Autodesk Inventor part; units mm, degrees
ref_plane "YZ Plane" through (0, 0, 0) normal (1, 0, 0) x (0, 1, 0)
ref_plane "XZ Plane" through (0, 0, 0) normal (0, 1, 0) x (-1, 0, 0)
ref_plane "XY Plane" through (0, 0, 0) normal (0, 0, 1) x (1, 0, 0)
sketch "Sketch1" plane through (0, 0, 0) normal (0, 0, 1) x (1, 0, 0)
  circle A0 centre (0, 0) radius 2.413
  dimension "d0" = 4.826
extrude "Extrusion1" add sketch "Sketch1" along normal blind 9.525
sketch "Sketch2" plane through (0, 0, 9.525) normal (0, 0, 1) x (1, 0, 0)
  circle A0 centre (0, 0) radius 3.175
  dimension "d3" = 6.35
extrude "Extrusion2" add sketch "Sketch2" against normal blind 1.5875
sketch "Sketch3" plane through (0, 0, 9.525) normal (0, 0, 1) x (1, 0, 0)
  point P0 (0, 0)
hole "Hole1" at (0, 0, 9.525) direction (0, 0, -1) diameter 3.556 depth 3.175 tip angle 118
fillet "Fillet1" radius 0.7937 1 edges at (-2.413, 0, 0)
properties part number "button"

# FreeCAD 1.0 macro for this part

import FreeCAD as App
import Part
import Sketcher
Q = App.Units.Quantity


def edges_at(feature, points):
    """Names of the edges that pass closest to the given points."""
    edges = feature.Shape.Edges
    near = lambda p: min(range(len(edges)), key=lambda i: edges[i].distToShape(Part.Vertex(*p))[0])
    return sorted({f"Edge{near(p) + 1}" for p in points})

doc = App.newDocument("Part")
body = doc.addObject("PartDesign::Body", "Body")

# Sketch on XY plane
sketch1 = body.newObject("Sketcher::SketchObject", "Sketch")
sketch1.AttachmentSupport = (doc.getObject("XY_Plane"), [""])
sketch1.MapMode = "FlatFace"
sketch1.addGeometry(Part.Circle(App.Vector(0, 0, 0), App.Vector(0, 0, 1), 2.4), False)
sketch1.addConstraint([
    Sketcher.Constraint("Coincident", 0, 3, -1, 1),
    Sketcher.Constraint("Diameter", 0, Q("0.19 in")),
])
pad1 = body.newObject("PartDesign::Pad", "Pad")
pad1.Profile = sketch1
pad1.Length = Q("0.375 in")

# Sketch on XY plane
sketch2 = body.newObject("Sketcher::SketchObject", "Sketch001")
sketch2.AttachmentSupport = (doc.getObject("XY_Plane"), [""])
sketch2.MapMode = "FlatFace"
sketch2.AttachmentOffset = App.Placement(App.Vector(0, 0, 0.375 * 25.4), App.Rotation())
sketch2.addGeometry(Part.Circle(App.Vector(0, 0, 0), App.Vector(0, 0, 1), 3.2), False)
sketch2.addConstraint([
    Sketcher.Constraint("Coincident", 0, 3, -1, 1),
    Sketcher.Constraint("Diameter", 0, Q("0.25 in")),
])
pad2 = body.newObject("PartDesign::Pad", "Pad001")
pad2.Profile = sketch2
pad2.Length = Q("0.0625 in")
pad2.Reversed = True

# Sketch on XY plane
sketch3 = body.newObject("Sketcher::SketchObject", "Sketch002")
sketch3.AttachmentSupport = (doc.getObject("XY_Plane"), [""])
sketch3.MapMode = "FlatFace"
sketch3.AttachmentOffset = App.Placement(App.Vector(0, 0, 0.375 * 25.4), App.Rotation())
sketch3.addGeometry(Part.Circle(App.Vector(0, 0, 0), App.Vector(0, 0, 1), 1.8), False)
sketch3.addConstraint([
    Sketcher.Constraint("Coincident", 0, 3, -1, 1),
    Sketcher.Constraint("Diameter", 0, Q("0.14 in")),
])
doc.recompute()
hole = body.newObject("PartDesign::Hole", "Hole")
hole.Profile = sketch3
hole.ThreadType = "None"
hole.Diameter = Q("0.14 in")
hole.DepthType = "Dimension"
hole.Depth = Q("0.125 in")
hole.DrillPoint = "Angled"
hole.DrillPointAngle = 118
doc.recompute()

fillet = body.newObject("PartDesign::Fillet", "Fillet")
fillet.Base = (hole, edges_at(hole, [(-2.413, 0, 0)]))
fillet.Radius = Q("0.031248 in")

doc.recompute()
